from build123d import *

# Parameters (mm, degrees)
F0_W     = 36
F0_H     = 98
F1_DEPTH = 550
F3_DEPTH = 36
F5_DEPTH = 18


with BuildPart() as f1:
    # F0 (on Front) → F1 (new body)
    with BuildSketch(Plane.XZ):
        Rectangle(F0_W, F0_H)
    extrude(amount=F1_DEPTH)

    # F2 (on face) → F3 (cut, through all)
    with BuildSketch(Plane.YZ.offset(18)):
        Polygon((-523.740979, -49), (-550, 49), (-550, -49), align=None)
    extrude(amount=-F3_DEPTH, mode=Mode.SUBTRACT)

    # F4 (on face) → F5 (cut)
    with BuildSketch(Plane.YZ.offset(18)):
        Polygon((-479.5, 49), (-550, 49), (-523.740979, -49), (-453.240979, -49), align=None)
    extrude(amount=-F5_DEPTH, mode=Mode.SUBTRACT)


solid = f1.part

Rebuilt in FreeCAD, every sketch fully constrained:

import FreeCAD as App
import Part
import Sketcher
from FreeCAD import Vector
Q = App.Units.Quantity

doc = App.newDocument("Part")
body = doc.addObject("PartDesign::Body", "Body")

sketch1 = body.newObject("Sketcher::SketchObject", "Sketch")
sketch1.AttachmentSupport = (doc.getObject("XZ_Plane"), [""])
sketch1.MapMode = "FlatFace"
sketch1.addGeometry([
    Part.LineSegment(Vector(-18, 49, 0), Vector(-18, -49, 0)),
    Part.LineSegment(Vector(-18, -49, 0), Vector(18, -49, 0)),
    Part.LineSegment(Vector(18, -49, 0), Vector(18, 49, 0)),
    Part.LineSegment(Vector(18, 49, 0), Vector(-18, 49, 0)),
], False)
sketch1.addConstraint([
    Sketcher.Constraint("Coincident", 0, 2, 1, 1),
    Sketcher.Constraint("Coincident", 1, 2, 2, 1),
    Sketcher.Constraint("Coincident", 2, 2, 3, 1),
    Sketcher.Constraint("Coincident", 3, 2, 0, 1),
    Sketcher.Constraint("Vertical", 0),
    Sketcher.Constraint("Horizontal", 1),
    Sketcher.Constraint("Vertical", 2),
    Sketcher.Constraint("Horizontal", 3),
    Sketcher.Constraint("Symmetric", 0, 2, 2, 2, -1, 1),
    Sketcher.Constraint("DistanceX", 1, 1, 1, 2, 36.0),
    Sketcher.Constraint("DistanceY", 0, 2, 0, 1, 98.0),
])
pad1 = body.newObject("PartDesign::Pad", "Pad")
pad1.Profile = sketch1
pad1.Length = 550

sketch2 = body.newObject("Sketcher::SketchObject", "Sketch001")
sketch2.AttachmentSupport = (doc.getObject("YZ_Plane"), [""])
sketch2.MapMode = "FlatFace"
sketch2.AttachmentOffset = App.Placement(Vector(0, 0, 18), App.Rotation())
sketch2.addGeometry([
    Part.LineSegment(Vector(-524, -49, 0), Vector(-550, 49, 0)),
    Part.LineSegment(Vector(-550, 49, 0), Vector(-550, -49, 0)),
    Part.LineSegment(Vector(-550, -49, 0), Vector(-524, -49, 0)),
], False)
sketch2.addConstraint([
    Sketcher.Constraint("Coincident", 0, 2, 1, 1),
    Sketcher.Constraint("Coincident", 1, 2, 2, 1),
    Sketcher.Constraint("Coincident", 2, 2, 0, 1),
    Sketcher.Constraint("Vertical", 1),
    Sketcher.Constraint("Horizontal", 2),
    Sketcher.Constraint("DistanceY", 1, 2, 1, 1, 98.0),
    Sketcher.Constraint("Angle", 0, Q("105 deg")),
    Sketcher.Constraint("DistanceX", 0, 2, -1, 1, 550.0),
    Sketcher.Constraint("DistanceY", -1, 1, 0, 2, 49.0),
])
pocket1 = body.newObject("PartDesign::Pocket", "Pocket")
pocket1.Profile = sketch2
pocket1.Type = "ThroughAll"

sketch3 = body.newObject("Sketcher::SketchObject", "Sketch002")
sketch3.AttachmentSupport = (doc.getObject("YZ_Plane"), [""])
sketch3.MapMode = "FlatFace"
sketch3.AttachmentOffset = App.Placement(Vector(0, 0, 18), App.Rotation())
sketch3.addGeometry([
    Part.LineSegment(Vector(-480, 49, 0), Vector(-550, 49, 0)),
    Part.LineSegment(Vector(-550, 49, 0), Vector(-524, -49, 0)),
    Part.LineSegment(Vector(-524, -49, 0), Vector(-453, -49, 0)),
    Part.LineSegment(Vector(-453, -49, 0), Vector(-480, 49, 0)),
], False)
sketch3.addConstraint([
    Sketcher.Constraint("Coincident", 0, 2, 1, 1),
    Sketcher.Constraint("Coincident", 1, 2, 2, 1),
    Sketcher.Constraint("Coincident", 2, 2, 3, 1),
    Sketcher.Constraint("Coincident", 3, 2, 0, 1),
    Sketcher.Constraint("Horizontal", 0),
    Sketcher.Constraint("Horizontal", 2),
    Sketcher.Constraint("Parallel", 1, 3),
    Sketcher.Constraint("Angle", 1, Q("-75 deg")),
    Sketcher.Constraint("DistanceX", 0, 2, 0, 1, 70.5),
    Sketcher.Constraint("DistanceX", 0, 2, -1, 1, 550.0),
    Sketcher.Constraint("DistanceY", -1, 1, 0, 2, 49.0),
    Sketcher.Constraint("DistanceY", 1, 2, -1, 1, 49.0),
])
pocket2 = body.newObject("PartDesign::Pocket", "Pocket001")
pocket2.Profile = sketch3
pocket2.Length = 18

doc.recompute()
